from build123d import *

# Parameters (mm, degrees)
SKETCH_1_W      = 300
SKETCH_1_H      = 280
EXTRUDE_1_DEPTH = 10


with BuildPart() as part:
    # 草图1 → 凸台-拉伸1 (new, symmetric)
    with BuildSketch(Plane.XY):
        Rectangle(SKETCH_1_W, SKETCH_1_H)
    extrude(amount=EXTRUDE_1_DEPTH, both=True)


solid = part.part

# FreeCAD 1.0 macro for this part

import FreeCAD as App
import Part
import Sketcher

V = App.Vector

doc = App.newDocument("Part")
body = doc.addObject("PartDesign::Body", "Body")

sketch1 = body.newObject("Sketcher::SketchObject", "Sketch")
sketch1.AttachmentSupport = (doc.getObject("XY_Plane"), [""])
sketch1.MapMode = "FlatFace"
sketch1.addGeometry([
    Part.LineSegment(V(-150, 140, 0), V(-150, -140, 0)),
    Part.LineSegment(V(-150, -140, 0), V(150, -140, 0)),
    Part.LineSegment(V(150, -140, 0), V(150, 140, 0)),
    Part.LineSegment(V(150, 140, 0), V(-150, 140, 0)),
], False)
sketch1.addConstraint([
    Sketcher.Constraint("Coincident", 0, 2, 1, 1),
    Sketcher.Constraint("Coincident", 1, 2, 2, 1),
    Sketcher.Constraint("Coincident", 2, 2, 3, 1),
    Sketcher.Constraint("Coincident", 3, 2, 0, 1),
    Sketcher.Constraint("Vertical", 0),
    Sketcher.Constraint("Horizontal", 1),
    Sketcher.Constraint("Vertical", 2),
    Sketcher.Constraint("Horizontal", 3),
    Sketcher.Constraint("Symmetric", 0, 2, 2, 2, -1, 1),
    Sketcher.Constraint("DistanceX", 1, 1, 1, 2, 300.0),
    Sketcher.Constraint("DistanceY", 0, 2, 0, 1, 280.0),
])
pad1 = body.newObject("PartDesign::Pad", "Pad")
pad1.Profile = sketch1
pad1.Length = 20
pad1.Midplane = True

doc.recompute()
